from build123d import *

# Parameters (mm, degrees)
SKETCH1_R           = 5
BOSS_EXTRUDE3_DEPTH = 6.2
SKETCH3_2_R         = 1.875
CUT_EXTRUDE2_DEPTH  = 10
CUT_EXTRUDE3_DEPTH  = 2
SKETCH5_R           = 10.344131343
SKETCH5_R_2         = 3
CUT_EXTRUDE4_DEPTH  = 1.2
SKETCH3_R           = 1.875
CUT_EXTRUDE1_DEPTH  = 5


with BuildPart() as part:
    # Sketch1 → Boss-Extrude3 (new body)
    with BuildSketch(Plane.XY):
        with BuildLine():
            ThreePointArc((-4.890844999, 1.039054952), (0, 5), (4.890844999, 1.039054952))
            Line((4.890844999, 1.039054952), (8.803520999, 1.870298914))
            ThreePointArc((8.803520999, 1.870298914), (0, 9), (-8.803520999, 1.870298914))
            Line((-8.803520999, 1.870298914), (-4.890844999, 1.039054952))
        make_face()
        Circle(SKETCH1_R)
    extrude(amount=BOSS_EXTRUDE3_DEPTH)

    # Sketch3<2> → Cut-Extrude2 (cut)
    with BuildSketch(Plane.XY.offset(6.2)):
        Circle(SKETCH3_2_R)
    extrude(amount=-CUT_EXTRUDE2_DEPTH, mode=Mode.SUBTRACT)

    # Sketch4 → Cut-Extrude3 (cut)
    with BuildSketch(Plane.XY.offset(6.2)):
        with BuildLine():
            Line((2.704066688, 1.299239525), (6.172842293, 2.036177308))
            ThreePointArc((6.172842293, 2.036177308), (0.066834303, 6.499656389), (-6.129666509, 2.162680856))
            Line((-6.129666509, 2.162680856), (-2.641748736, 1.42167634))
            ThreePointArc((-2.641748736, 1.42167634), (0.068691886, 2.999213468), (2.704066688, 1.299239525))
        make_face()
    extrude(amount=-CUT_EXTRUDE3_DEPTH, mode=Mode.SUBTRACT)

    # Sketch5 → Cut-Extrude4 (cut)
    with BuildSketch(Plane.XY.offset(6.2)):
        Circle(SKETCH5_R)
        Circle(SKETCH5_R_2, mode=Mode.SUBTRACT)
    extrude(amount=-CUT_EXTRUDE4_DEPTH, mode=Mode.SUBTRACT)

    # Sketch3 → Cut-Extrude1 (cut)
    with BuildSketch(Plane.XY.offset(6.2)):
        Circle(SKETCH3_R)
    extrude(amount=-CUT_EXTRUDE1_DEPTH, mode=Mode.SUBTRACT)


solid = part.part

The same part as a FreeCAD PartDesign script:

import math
import FreeCAD as App
import Part
import Sketcher
from FreeCAD import Vector
Q = App.Units.Quantity

doc = App.newDocument("Part")
body = doc.addObject("PartDesign::Body", "Body")

# Sketch on XY plane
sketch1 = doc.addObject("Sketcher::SketchObject", "Sketch")
body.addObject(sketch1)
sketch1.AttachmentSupport = (doc.XY_Plane, [""])
sketch1.MapMode = "FlatFace"
sketch1.addGeometry(Part.LineSegment(Vector(4.9, 1, 0), Vector(8.8, 1.9, 0)), False)
sketch1.addGeometry(Part.ArcOfCircle(Part.Circle(Vector(0, 0, 0), Vector(0, 0, 1), 9), math.radians(12), math.radians(168)), False)
sketch1.addGeometry(Part.LineSegment(Vector(-8.8, 1.9, 0), Vector(-4.9, 1, 0)), False)
sketch1.addGeometry(Part.ArcOfCircle(Part.Circle(Vector(0, 0, 0), Vector(0, 0, 1), 5), math.radians(168), math.radians(372)), False)
sketch1.addConstraint(Sketcher.Constraint("Coincident", 0, 2, 1, 1))
sketch1.addConstraint(Sketcher.Constraint("Coincident", 1, 2, 2, 1))
sketch1.addConstraint(Sketcher.Constraint("Coincident", 2, 2, 3, 1))
sketch1.addConstraint(Sketcher.Constraint("Coincident", 3, 2, 0, 1))
sketch1.addConstraint(Sketcher.Constraint("Coincident", 1, 3, -1, 1))
sketch1.addConstraint(Sketcher.Constraint("Coincident", 3, 3, -1, 1))
sketch1.addConstraint(Sketcher.Constraint("Horizontal", 0, 2, 1, 2))
sketch1.addConstraint(Sketcher.Constraint("Horizontal", 2, 2, 3, 2))
sketch1.addConstraint(Sketcher.Constraint("Radius", 1, Q("9 mm")))
sketch1.addConstraint(Sketcher.Constraint("Radius", 3, Q("5 mm")))
sketch1.addConstraint(Sketcher.Constraint("DistanceY", -1, 1, 0, 2, Q("1.870299 mm")))
sketch1.addConstraint(Sketcher.Constraint("DistanceX", 2, 2, 3, 2, Q("9.78169 mm")))
pad1 = doc.addObject("PartDesign::Pad", "Pad")
body.addObject(pad1)
pad1.Profile = sketch1
pad1.Length = 6.2

# Sketch on XY plane
sketch2 = doc.addObject("Sketcher::SketchObject", "Sketch001")
body.addObject(sketch2)
sketch2.AttachmentSupport = (doc.XY_Plane, [""])
sketch2.MapMode = "FlatFace"
sketch2.AttachmentOffset = App.Placement(Vector(0, 0, 6.2), App.Rotation())
sketch2.addGeometry(Part.Circle(Vector(0, 0, 0), Vector(0, 0, 1), 1.9), False)
sketch2.addConstraint(Sketcher.Constraint("Coincident", 0, 3, -1, 1))
sketch2.addConstraint(Sketcher.Constraint("Diameter", 0, Q("3.75 mm")))
pocket1 = doc.addObject("PartDesign::Pocket", "Pocket")
body.addObject(pocket1)
pocket1.Profile = sketch2
pocket1.Length = 10

# Sketch on XY plane
sketch3 = doc.addObject("Sketcher::SketchObject", "Sketch002")
body.addObject(sketch3)
sketch3.AttachmentSupport = (doc.XY_Plane, [""])
sketch3.MapMode = "FlatFace"
sketch3.AttachmentOffset = App.Placement(Vector(0, 0, 6.2), App.Rotation())
sketch3.addGeometry(Part.LineSegment(Vector(2.7, 1.3, 0), Vector(6.2, 2, 0)), False)
sketch3.addGeometry(Part.ArcOfCircle(Part.Circle(Vector(0, 0, 0), Vector(0, 0, 1), 6.5), math.radians(18), math.radians(161)), False)
sketch3.addGeometry(Part.LineSegment(Vector(-6.1, 2.2, 0), Vector(-2.6, 1.4, 0)), False)
sketch3.addGeometry(Part.ArcOfCircle(Part.Circle(Vector(0, 0, 0), Vector(0, 0, 1), 3), math.radians(26), math.radians(152)), False)
sketch3.addConstraint(Sketcher.Constraint("Coincident", 0, 2, 1, 1))
sketch3.addConstraint(Sketcher.Constraint("Coincident", 1, 2, 2, 1))
sketch3.addConstraint(Sketcher.Constraint("Coincident", 2, 2, 3, 2))
sketch3.addConstraint(Sketcher.Constraint("Coincident", 3, 1, 0, 1))
sketch3.addConstraint(Sketcher.Constraint("Coincident", 1, 3, -1, 1))
sketch3.addConstraint(Sketcher.Constraint("Coincident", 3, 3, -1, 1))
sketch3.addConstraint(Sketcher.Constraint("Radius", 3, Q("3 mm")))
sketch3.addConstraint(Sketcher.Constraint("Radius", 1, Q("6.5 mm")))
sketch3.addConstraint(Sketcher.Constraint("DistanceY", 2, 2, 0, 2, Q("0.614501 mm")))
sketch3.addConstraint(Sketcher.Constraint("Distance", 2, Q("3.565762 mm")))
sketch3.addConstraint(Sketcher.Constraint("DistanceY", -1, 1, 1, 2, Q("2.162681 mm")))
sketch3.addConstraint(Sketcher.Constraint("DistanceY", -1, 1, 3, 1, Q("1.29924 mm")))
pocket2 = doc.addObject("PartDesign::Pocket", "Pocket001")
body.addObject(pocket2)
pocket2.Profile = sketch3
pocket2.Length = 2

# Sketch on XY plane
sketch4 = doc.addObject("Sketcher::SketchObject", "Sketch003")
body.addObject(sketch4)
sketch4.AttachmentSupport = (doc.XY_Plane, [""])
sketch4.MapMode = "FlatFace"
sketch4.AttachmentOffset = App.Placement(Vector(0, 0, 6.2), App.Rotation())
sketch4.addGeometry(Part.Circle(Vector(0, 0, 0), Vector(0, 0, 1), 10.3), False)
sketch4.addGeometry(Part.Circle(Vector(0, 0, 0), Vector(0, 0, 1), 3), False)
sketch4.addConstraint(Sketcher.Constraint("Coincident", 0, 3, -1, 1))
sketch4.addConstraint(Sketcher.Constraint("Coincident", 1, 3, -1, 1))
sketch4.addConstraint(Sketcher.Constraint("Diameter", 1, Q("6 mm")))
sketch4.addConstraint(Sketcher.Constraint("Diameter", 0, Q("20.688263 mm")))
pocket3 = doc.addObject("PartDesign::Pocket", "Pocket002")
body.addObject(pocket3)
pocket3.Profile = sketch4
pocket3.Length = 1.2

# Sketch on XY plane
sketch5 = doc.addObject("Sketcher::SketchObject", "Sketch004")
body.addObject(sketch5)
sketch5.AttachmentSupport = (doc.XY_Plane, [""])
sketch5.MapMode = "FlatFace"
sketch5.AttachmentOffset = App.Placement(Vector(0, 0, 6.2), App.Rotation())
sketch5.addGeometry(Part.Circle(Vector(0, 0, 0), Vector(0, 0, 1), 1.9), False)
sketch5.addConstraint(Sketcher.Constraint("Coincident", 0, 3, -1, 1))
sketch5.addConstraint(Sketcher.Constraint("Diameter", 0, Q("3.75 mm")))
pocket4 = doc.addObject("PartDesign::Pocket", "Pocket003")
body.addObject(pocket4)
pocket4.Profile = sketch5
pocket4.Length = 5

doc.recompute()
